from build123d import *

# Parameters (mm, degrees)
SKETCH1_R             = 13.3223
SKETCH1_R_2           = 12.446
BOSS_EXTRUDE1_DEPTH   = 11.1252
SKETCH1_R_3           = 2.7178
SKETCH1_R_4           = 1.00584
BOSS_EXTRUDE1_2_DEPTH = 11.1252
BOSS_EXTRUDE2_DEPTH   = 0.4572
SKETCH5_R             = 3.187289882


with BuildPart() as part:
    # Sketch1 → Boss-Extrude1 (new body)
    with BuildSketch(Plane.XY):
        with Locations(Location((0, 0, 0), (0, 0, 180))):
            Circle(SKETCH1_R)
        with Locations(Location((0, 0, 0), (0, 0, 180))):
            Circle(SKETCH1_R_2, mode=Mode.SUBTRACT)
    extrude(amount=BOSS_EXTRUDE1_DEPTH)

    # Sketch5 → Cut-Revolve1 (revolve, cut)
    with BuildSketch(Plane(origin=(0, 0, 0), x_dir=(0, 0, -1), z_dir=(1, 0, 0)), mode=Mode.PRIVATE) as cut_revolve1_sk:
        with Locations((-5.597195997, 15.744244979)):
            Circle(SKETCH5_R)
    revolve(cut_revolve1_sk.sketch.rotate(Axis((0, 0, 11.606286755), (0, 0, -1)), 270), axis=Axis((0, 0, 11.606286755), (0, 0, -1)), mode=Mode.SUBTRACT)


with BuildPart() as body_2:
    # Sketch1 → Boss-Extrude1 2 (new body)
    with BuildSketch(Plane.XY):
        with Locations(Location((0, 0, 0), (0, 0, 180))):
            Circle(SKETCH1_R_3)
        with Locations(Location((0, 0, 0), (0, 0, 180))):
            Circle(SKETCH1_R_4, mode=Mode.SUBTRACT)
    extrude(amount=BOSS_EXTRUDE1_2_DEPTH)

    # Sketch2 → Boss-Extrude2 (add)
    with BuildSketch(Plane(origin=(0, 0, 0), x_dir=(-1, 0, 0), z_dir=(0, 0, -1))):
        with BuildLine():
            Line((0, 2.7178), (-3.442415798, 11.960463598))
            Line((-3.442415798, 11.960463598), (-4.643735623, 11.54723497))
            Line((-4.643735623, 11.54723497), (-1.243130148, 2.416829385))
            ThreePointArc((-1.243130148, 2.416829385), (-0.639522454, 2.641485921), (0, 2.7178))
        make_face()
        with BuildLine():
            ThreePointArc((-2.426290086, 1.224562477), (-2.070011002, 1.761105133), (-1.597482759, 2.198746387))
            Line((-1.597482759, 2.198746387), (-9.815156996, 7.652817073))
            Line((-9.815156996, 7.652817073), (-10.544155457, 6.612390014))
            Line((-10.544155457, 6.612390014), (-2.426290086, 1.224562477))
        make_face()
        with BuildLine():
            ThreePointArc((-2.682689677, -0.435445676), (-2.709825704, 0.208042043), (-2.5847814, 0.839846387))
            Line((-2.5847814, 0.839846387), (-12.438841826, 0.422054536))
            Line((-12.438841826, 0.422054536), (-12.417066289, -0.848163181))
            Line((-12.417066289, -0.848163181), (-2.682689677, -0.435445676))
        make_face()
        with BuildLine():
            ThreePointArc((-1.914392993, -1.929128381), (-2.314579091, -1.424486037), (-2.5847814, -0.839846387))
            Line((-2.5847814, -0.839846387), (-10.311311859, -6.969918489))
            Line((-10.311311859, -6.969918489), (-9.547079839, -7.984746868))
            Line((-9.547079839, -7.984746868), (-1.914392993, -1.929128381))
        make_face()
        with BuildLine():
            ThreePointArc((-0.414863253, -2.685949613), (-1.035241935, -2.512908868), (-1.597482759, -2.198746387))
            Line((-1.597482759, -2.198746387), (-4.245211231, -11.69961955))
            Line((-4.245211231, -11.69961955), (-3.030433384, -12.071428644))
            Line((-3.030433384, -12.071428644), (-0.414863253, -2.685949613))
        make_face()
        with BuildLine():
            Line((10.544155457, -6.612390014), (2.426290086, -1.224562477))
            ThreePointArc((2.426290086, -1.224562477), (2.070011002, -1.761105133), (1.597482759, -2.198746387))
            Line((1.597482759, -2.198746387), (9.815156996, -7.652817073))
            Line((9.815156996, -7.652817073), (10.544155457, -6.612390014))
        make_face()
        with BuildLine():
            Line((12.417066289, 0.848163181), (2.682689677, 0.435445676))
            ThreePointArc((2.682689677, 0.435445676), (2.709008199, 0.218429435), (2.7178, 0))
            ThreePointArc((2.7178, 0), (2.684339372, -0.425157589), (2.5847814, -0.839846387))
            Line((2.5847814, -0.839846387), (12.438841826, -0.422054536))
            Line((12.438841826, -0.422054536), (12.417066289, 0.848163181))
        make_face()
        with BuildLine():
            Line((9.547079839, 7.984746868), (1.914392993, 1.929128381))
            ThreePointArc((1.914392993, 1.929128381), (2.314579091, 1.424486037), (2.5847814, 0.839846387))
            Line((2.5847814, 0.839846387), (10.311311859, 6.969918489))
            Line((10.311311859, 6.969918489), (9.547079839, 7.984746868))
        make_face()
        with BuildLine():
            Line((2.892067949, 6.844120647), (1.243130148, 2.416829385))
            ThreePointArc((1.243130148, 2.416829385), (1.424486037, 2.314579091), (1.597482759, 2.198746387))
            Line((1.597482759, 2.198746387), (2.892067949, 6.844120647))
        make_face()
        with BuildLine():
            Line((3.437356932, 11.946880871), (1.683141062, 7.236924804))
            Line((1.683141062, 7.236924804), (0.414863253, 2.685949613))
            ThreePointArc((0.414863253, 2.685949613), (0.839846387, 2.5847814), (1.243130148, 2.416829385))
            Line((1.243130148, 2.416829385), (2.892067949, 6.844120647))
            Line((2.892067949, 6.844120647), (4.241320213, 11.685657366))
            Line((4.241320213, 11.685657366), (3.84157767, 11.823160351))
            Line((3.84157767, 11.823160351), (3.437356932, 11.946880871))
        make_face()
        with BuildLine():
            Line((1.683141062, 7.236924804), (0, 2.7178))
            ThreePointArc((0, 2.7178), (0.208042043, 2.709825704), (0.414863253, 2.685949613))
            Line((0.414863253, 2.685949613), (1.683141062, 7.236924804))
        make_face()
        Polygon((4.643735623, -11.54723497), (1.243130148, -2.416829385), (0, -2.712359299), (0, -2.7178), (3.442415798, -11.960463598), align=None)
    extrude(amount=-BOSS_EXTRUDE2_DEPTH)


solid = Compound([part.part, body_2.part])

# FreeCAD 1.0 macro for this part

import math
import FreeCAD as App
import Part
import Sketcher
from FreeCAD import Vector
Q = App.Units.Quantity


def add_polygon(sketch, points):
    """Adds a closed chain of lines whose ends are joined by coincident constraints."""
    first, n = sketch.GeometryCount, len(points)
    for a, b in zip(points, points[1:] + points[:1]):
        sketch.addGeometry(Part.LineSegment(App.Vector(*a, 0), App.Vector(*b, 0)), False)
    for i in range(n):
        sketch.addConstraint(Sketcher.Constraint("Coincident", first + i, 2, first + (i + 1) % n, 1))

doc = App.newDocument("Part")
body = doc.addObject("PartDesign::Body", "Body")

# Sketch on XY plane
sketch1 = body.newObject("Sketcher::SketchObject", "Sketch")
sketch1.AttachmentSupport = (doc.getObject("XY_Plane"), [""])
sketch1.MapMode = "FlatFace"
sketch1.addGeometry(Part.Circle(Vector(0, 0, 0), Vector(0, 0, 1), 13), False)
sketch1.addGeometry(Part.Circle(Vector(0, 0, 0), Vector(0, 0, 1), 12), False)
sketch1.addConstraint(Sketcher.Constraint("Coincident", 0, 3, -1, 1))
sketch1.addConstraint(Sketcher.Constraint("Coincident", 1, 3, -1, 1))
sketch1.addConstraint(Sketcher.Constraint("Diameter", 1, Q("0.98 in")))
sketch1.addConstraint(Sketcher.Constraint("Diameter", 0, Q("1.049 in")))
pad1 = body.newObject("PartDesign::Pad", "Pad")
pad1.Profile = sketch1
pad1.Length = Q("0.438 in")

# Sketch on YZ plane
sketch2 = body.newObject("Sketcher::SketchObject", "Sketch001")
sketch2.AttachmentSupport = (doc.getObject("YZ_Plane"), [""])
sketch2.MapMode = "FlatFace"
sketch2.addGeometry(Part.Circle(Vector(15.7, 5.6, 0), Vector(0, 0, 1), 3.2), False)
sketch2.addConstraint(Sketcher.Constraint("Diameter", 0, 6.37458))
sketch2.addConstraint(Sketcher.Constraint("DistanceX", -1, 1, 0, 3, 15.744245))
sketch2.addConstraint(Sketcher.Constraint("DistanceY", -1, 1, 0, 3, 5.597196))
groove = body.newObject("PartDesign::Groove", "Groove")
groove.Profile = sketch2
groove.ReferenceAxis = (sketch2, ["V_Axis"])
groove.Angle = 360
body2 = doc.addObject("PartDesign::Body", "Body001")

# Sketch on XY plane
sketch3 = body2.newObject("Sketcher::SketchObject", "Sketch002")
sketch3.AttachmentSupport = (doc.getObject("XY_Plane001"), [""])
sketch3.MapMode = "FlatFace"
sketch3.addGeometry(Part.Circle(Vector(0, 0, 0), Vector(0, 0, 1), 2.7), False)
sketch3.addGeometry(Part.Circle(Vector(0, 0, 0), Vector(0, 0, 1), 1), False)
sketch3.addConstraint(Sketcher.Constraint("Coincident", 0, 3, -1, 1))
sketch3.addConstraint(Sketcher.Constraint("Coincident", 1, 3, -1, 1))
sketch3.addConstraint(Sketcher.Constraint("Diameter", 0, Q("0.214 in")))
sketch3.addConstraint(Sketcher.Constraint("Diameter", 1, Q("0.0792 in")))
pad2 = body2.newObject("PartDesign::Pad", "Pad001")
pad2.Profile = sketch3
pad2.Length = Q("0.438 in")

# Sketch on XY plane
sketch4 = body2.newObject("Sketcher::SketchObject", "Sketch003")
sketch4.AttachmentSupport = (doc.getObject("XY_Plane001"), [""])
sketch4.MapMode = "FlatFace"
sketch4.addGeometry(Part.LineSegment(Vector(0, 2.7178, 0), Vector(3.442416, 11.960464, 0)), False)  # 0
sketch4.addGeometry(Part.LineSegment(Vector(3.442416, 11.960464, 0), Vector(4.643736, 11.547235, 0)), False)  # 1
sketch4.addGeometry(Part.LineSegment(Vector(4.643736, 11.547235, 0), Vector(1.24313, 2.416829, 0)), False)  # 2
sketch4.addGeometry(Part.ArcOfCircle(Part.Circle(Vector(0, 0, 0), Vector(0, 0, 1), 2.7178), math.radians(62.780339), math.radians(90)), False)  # 3
sketch4.addGeometry(Part.ArcOfCircle(Part.Circle(Vector(0, 0, 0), Vector(0, 0, 1), 2.7178), math.radians(26.780339), math.radians(54)), False)  # 4
sketch4.addGeometry(Part.LineSegment(Vector(1.597483, 2.198746, 0), Vector(9.815157, 7.652817, 0)), False)  # 5
sketch4.addGeometry(Part.LineSegment(Vector(9.815157, 7.652817, 0), Vector(10.544155, 6.61239, 0)), False)  # 6
sketch4.addGeometry(Part.LineSegment(Vector(10.544155, 6.61239, 0), Vector(2.42629, 1.224562, 0)), False)  # 7
sketch4.addGeometry(Part.ArcOfCircle(Part.Circle(Vector(0, 0, 0), Vector(0, 0, 1), 2.7178), math.radians(-9.219661), math.radians(18)), False)  # 8
sketch4.addGeometry(Part.LineSegment(Vector(2.584781, 0.839846, 0), Vector(12.438842, 0.422055, 0)), False)  # 9
sketch4.addGeometry(Part.LineSegment(Vector(12.438842, 0.422055, 0), Vector(12.417066, -0.848163, 0)), False)  # 10
sketch4.addGeometry(Part.LineSegment(Vector(12.417066, -0.848163, 0), Vector(2.68269, -0.435446, 0)), False)  # 11
sketch4.addGeometry(Part.ArcOfCircle(Part.Circle(Vector(0, 0, 0), Vector(0, 0, 1), 2.7178), math.radians(-45.219661), math.radians(-18)), False)  # 12
sketch4.addGeometry(Part.LineSegment(Vector(2.584781, -0.839846, 0), Vector(10.311312, -6.969918, 0)), False)  # 13
sketch4.addGeometry(Part.LineSegment(Vector(10.311312, -6.969918, 0), Vector(9.54708, -7.984747, 0)), False)  # 14
sketch4.addGeometry(Part.LineSegment(Vector(9.54708, -7.984747, 0), Vector(1.914393, -1.929128, 0)), False)  # 15
sketch4.addGeometry(Part.ArcOfCircle(Part.Circle(Vector(0, 0, 0), Vector(0, 0, 1), 2.7178), math.radians(-81.219661), math.radians(-54)), False)  # 16
sketch4.addGeometry(Part.LineSegment(Vector(1.597483, -2.198746, 0), Vector(4.245211, -11.69962, 0)), False)  # 17
sketch4.addGeometry(Part.LineSegment(Vector(4.245211, -11.69962, 0), Vector(3.030433, -12.071429, 0)), False)  # 18
sketch4.addGeometry(Part.LineSegment(Vector(3.030433, -12.071429, 0), Vector(0.414863, -2.68595, 0)), False)  # 19
sketch4.addGeometry(Part.LineSegment(Vector(-10.544155, -6.61239, 0), Vector(-2.42629, -1.224562, 0)), False)  # 20
sketch4.addGeometry(Part.ArcOfCircle(Part.Circle(Vector(0, 0, 0), Vector(0, 0, 1), 2.7178), math.radians(-153.219661), math.radians(-126)), False)  # 21
sketch4.addGeometry(Part.LineSegment(Vector(-1.597483, -2.198746, 0), Vector(-9.815157, -7.652817, 0)), False)  # 22
sketch4.addGeometry(Part.LineSegment(Vector(-9.815157, -7.652817, 0), Vector(-10.544155, -6.61239, 0)), False)  # 23
sketch4.addGeometry(Part.LineSegment(Vector(-12.417066, 0.848163, 0), Vector(-2.68269, 0.435446, 0)), False)  # 24
sketch4.addGeometry(Part.ArcOfCircle(Part.Circle(Vector(0, 0, 0), Vector(0, 0, 1), 2.7178), math.radians(170.780339), math.radians(180)), False)  # 25
sketch4.addGeometry(Part.ArcOfCircle(Part.Circle(Vector(0, 0, 0), Vector(0, 0, 1), 2.7178), math.radians(-180), math.radians(-162)), False)  # 26
sketch4.addGeometry(Part.LineSegment(Vector(-2.584781, -0.839846, 0), Vector(-12.438842, -0.422055, 0)), False)  # 27
sketch4.addGeometry(Part.LineSegment(Vector(-12.438842, -0.422055, 0), Vector(-12.417066, 0.848163, 0)), False)  # 28
sketch4.addGeometry(Part.LineSegment(Vector(-9.54708, 7.984747, 0), Vector(-1.914393, 1.929128, 0)), False)  # 29
sketch4.addGeometry(Part.ArcOfCircle(Part.Circle(Vector(0, 0, 0), Vector(0, 0, 1), 2.7178), math.radians(134.780339), math.radians(162)), False)  # 30
sketch4.addGeometry(Part.LineSegment(Vector(-2.584781, 0.839846, 0), Vector(-10.311312, 6.969918, 0)), False)  # 31
sketch4.addGeometry(Part.LineSegment(Vector(-10.311312, 6.969918, 0), Vector(-9.54708, 7.984747, 0)), False)  # 32
sketch4.addGeometry(Part.ArcOfCircle(Part.Circle(Vector(0, 0, 0), Vector(0, 0, 1), 2.7178), math.radians(117.219661), math.radians(126)), False)  # 33
sketch4.addGeometry(Part.LineSegment(Vector(-1.597483, 2.198746, 0), Vector(-2.892068, 6.844121, 0)), False)  # 34
sketch4.addGeometry(Part.LineSegment(Vector(-2.892068, 6.844121, 0), Vector(-4.24132, 11.685657, 0)), False)  # 35
sketch4.addGeometry(Part.LineSegment(Vector(-4.24132, 11.685657, 0), Vector(-3.841578, 11.82316, 0)), False)  # 36
sketch4.addGeometry(Part.LineSegment(Vector(-3.841578, 11.82316, 0), Vector(-3.437357, 11.946881, 0)), False)  # 37
sketch4.addGeometry(Part.LineSegment(Vector(-3.437357, 11.946881, 0), Vector(-1.683141, 7.236925, 0)), False)  # 38
sketch4.addGeometry(Part.LineSegment(Vector(-1.683141, 7.236925, 0), Vector(0, 2.7178, 0)), False)  # 39
sketch4.addGeometry(Part.ArcOfCircle(Part.Circle(Vector(0, 0, 0), Vector(0, 0, 1), 2.7178), math.radians(90), math.radians(98.780339)), False)  # 40
sketch4.addGeometry(Part.ArcOfCircle(Part.Circle(Vector(0, 0, 0), Vector(0, 0, 1), 2.7178), math.radians(98.780339), math.radians(117.219661)), False)  # 41
add_polygon(sketch4, [(-4.643736, -11.547235), (-1.24313, -2.416829), (0, -2.712359), (0, -2.7178), (-3.442416, -11.960464)])  # lines 42-46
sketch4.addConstraint(Sketcher.Constraint("Coincident", 0, 2, 1, 1))
sketch4.addConstraint(Sketcher.Constraint("Coincident", 1, 2, 2, 1))
sketch4.addConstraint(Sketcher.Constraint("Coincident", 2, 2, 3, 1))
sketch4.addConstraint(Sketcher.Constraint("Coincident", 3, 2, 0, 1))
sketch4.addConstraint(Sketcher.Constraint("Coincident", 4, 2, 5, 1))
sketch4.addConstraint(Sketcher.Constraint("Coincident", 5, 2, 6, 1))
sketch4.addConstraint(Sketcher.Constraint("Coincident", 6, 2, 7, 1))
sketch4.addConstraint(Sketcher.Constraint("Coincident", 7, 2, 4, 1))
sketch4.addConstraint(Sketcher.Constraint("Coincident", 8, 2, 9, 1))
sketch4.addConstraint(Sketcher.Constraint("Coincident", 9, 2, 10, 1))
sketch4.addConstraint(Sketcher.Constraint("Coincident", 10, 2, 11, 1))
sketch4.addConstraint(Sketcher.Constraint("Coincident", 11, 2, 8, 1))
sketch4.addConstraint(Sketcher.Constraint("Coincident", 12, 2, 13, 1))
sketch4.addConstraint(Sketcher.Constraint("Coincident", 13, 2, 14, 1))
sketch4.addConstraint(Sketcher.Constraint("Coincident", 14, 2, 15, 1))
sketch4.addConstraint(Sketcher.Constraint("Coincident", 15, 2, 12, 1))
sketch4.addConstraint(Sketcher.Constraint("Coincident", 16, 2, 17, 1))
sketch4.addConstraint(Sketcher.Constraint("Coincident", 17, 2, 18, 1))
sketch4.addConstraint(Sketcher.Constraint("Coincident", 18, 2, 19, 1))
sketch4.addConstraint(Sketcher.Constraint("Coincident", 19, 2, 16, 1))
sketch4.addConstraint(Sketcher.Constraint("Coincident", 20, 2, 21, 1))
sketch4.addConstraint(Sketcher.Constraint("Coincident", 21, 2, 22, 1))
sketch4.addConstraint(Sketcher.Constraint("Coincident", 22, 2, 23, 1))
sketch4.addConstraint(Sketcher.Constraint("Coincident", 23, 2, 20, 1))
sketch4.addConstraint(Sketcher.Constraint("Coincident", 24, 2, 25, 1))
sketch4.addConstraint(Sketcher.Constraint("Coincident", 25, 2, 26, 1))
sketch4.addConstraint(Sketcher.Constraint("Coincident", 26, 2, 27, 1))
sketch4.addConstraint(Sketcher.Constraint("Coincident", 27, 2, 28, 1))
sketch4.addConstraint(Sketcher.Constraint("Coincident", 28, 2, 24, 1))
sketch4.addConstraint(Sketcher.Constraint("Coincident", 29, 2, 30, 1))
sketch4.addConstraint(Sketcher.Constraint("Coincident", 30, 2, 31, 1))
sketch4.addConstraint(Sketcher.Constraint("Coincident", 31, 2, 32, 1))
sketch4.addConstraint(Sketcher.Constraint("Coincident", 32, 2, 29, 1))
sketch4.addConstraint(Sketcher.Constraint("Coincident", 33, 2, 34, 1))
sketch4.addConstraint(Sketcher.Constraint("Coincident", 34, 2, 35, 1))
sketch4.addConstraint(Sketcher.Constraint("Coincident", 35, 2, 36, 1))
sketch4.addConstraint(Sketcher.Constraint("Coincident", 36, 2, 37, 1))
sketch4.addConstraint(Sketcher.Constraint("Coincident", 37, 2, 38, 1))
sketch4.addConstraint(Sketcher.Constraint("Coincident", 38, 2, 39, 1))
sketch4.addConstraint(Sketcher.Constraint("Coincident", 39, 2, 40, 1))
sketch4.addConstraint(Sketcher.Constraint("Coincident", 40, 2, 41, 1))
sketch4.addConstraint(Sketcher.Constraint("Coincident", 41, 2, 33, 1))
sketch4.addConstraint(Sketcher.Constraint("Vertical", 44))
sketch4.addConstraint(Sketcher.Constraint("Coincident", 3, 3, -1, 1))
sketch4.addConstraint(Sketcher.Constraint("Coincident", 4, 3, -1, 1))
sketch4.addConstraint(Sketcher.Constraint("Coincident", 8, 3, -1, 1))
sketch4.addConstraint(Sketcher.Constraint("Coincident", 12, 3, -1, 1))
sketch4.addConstraint(Sketcher.Constraint("Coincident", 16, 3, -1, 1))
sketch4.addConstraint(Sketcher.Constraint("Coincident", 21, 3, -1, 1))
sketch4.addConstraint(Sketcher.Constraint("Coincident", 25, 3, -1, 1))
sketch4.addConstraint(Sketcher.Constraint("Coincident", 26, 3, -1, 1))
sketch4.addConstraint(Sketcher.Constraint("Coincident", 30, 3, -1, 1))
sketch4.addConstraint(Sketcher.Constraint("Coincident", 33, 3, -1, 1))
sketch4.addConstraint(Sketcher.Constraint("Coincident", 40, 3, -1, 1))
sketch4.addConstraint(Sketcher.Constraint("Coincident", 41, 3, -1, 1))
sketch4.addConstraint(Sketcher.Constraint("Coincident", 39, 2, 3, 2))
sketch4.addConstraint(Sketcher.Constraint("PointOnObject", 3, 2, -2))
sketch4.addConstraint(Sketcher.Constraint("PointOnObject", 25, 2, -1))
sketch4.addConstraint(Sketcher.Constraint("PointOnObject", 43, 2, -2))
sketch4.addConstraint(Sketcher.Constraint("Radius", 3, Q("0.107 in")))
sketch4.addConstraint(Sketcher.Constraint("Radius", 4, Q("0.107 in")))
sketch4.addConstraint(Sketcher.Constraint("Radius", 8, Q("0.107 in")))
sketch4.addConstraint(Sketcher.Constraint("Radius", 12, Q("0.107 in")))
sketch4.addConstraint(Sketcher.Constraint("Radius", 16, Q("0.107 in")))
sketch4.addConstraint(Sketcher.Constraint("Radius", 21, Q("0.107 in")))
sketch4.addConstraint(Sketcher.Constraint("Radius", 25, Q("0.107 in")))
sketch4.addConstraint(Sketcher.Constraint("Radius", 30, Q("0.107 in")))
sketch4.addConstraint(Sketcher.Constraint("DistanceY", 44, 2, -1, 1, Q("0.107 in")))
sketch4.addConstraint(Sketcher.Constraint("DistanceX", 1, 2, 6, 2, Q("0.2323 in")))
sketch4.addConstraint(Sketcher.Constraint("DistanceY", 8, 2, 4, 2, Q("0.0535 in")))
sketch4.addConstraint(Sketcher.Constraint("DistanceY", 16, 2, 12, 2, Q("0.0535 in")))
sketch4.addConstraint(Sketcher.Constraint("DistanceY", 21, 2, 26, 2, Q("0.0535 in")))
sketch4.addConstraint(Sketcher.Constraint("DistanceY", 30, 2, 33, 2, Q("0.0535 in")))
sketch4.addConstraint(Sketcher.Constraint("DistanceX", 23, 2, 46, 2, Q("0.2323 in")))
sketch4.addConstraint(Sketcher.Constraint("DistanceY", 44, 2, 44, 1, 0.005441))
sketch4.addConstraint(Sketcher.Constraint("DistanceX", 5, 2, 6, 2, 0.728998))
sketch4.addConstraint(Sketcher.Constraint("DistanceX", 4, 2, 8, 2, 0.987299))
sketch4.addConstraint(Sketcher.Constraint("DistanceX", 7, 2, 11, 2, 0.2564))
sketch4.addConstraint(Sketcher.Constraint("DistanceY", 12, 2, 11, 2, 0.404401))
sketch4.addConstraint(Sketcher.Constraint("DistanceY", 14, 2, 9, 2, 8.406801))
sketch4.addConstraint(Sketcher.Constraint("DistanceX", 12, 2, 14, 2, 6.962298))
sketch4.addConstraint(Sketcher.Constraint("DistanceY", 14, 2, 12, 2, 7.1449))
sketch4.addConstraint(Sketcher.Constraint("DistanceX", 16, 2, 12, 2, 0.987299))
sketch4.addConstraint(Sketcher.Constraint("DistanceX", 17, 2, 13, 2, 6.066101))
sketch4.addConstraint(Sketcher.Constraint("DistanceY", 17, 2, 13, 2, 4.729701))
sketch4.addConstraint(Sketcher.Constraint("DistanceY", 18, 2, 15, 2, 10.1423))
sketch4.addConstraint(Sketcher.Constraint("DistanceX", 23, 2, 22, 2, 0.728998))
sketch4.addConstraint(Sketcher.Constraint("DistanceX", 24, 2, 20, 2, 0.2564))
sketch4.addConstraint(Sketcher.Constraint("DistanceX", 26, 2, 21, 2, 0.987299))
sketch4.addConstraint(Sketcher.Constraint("DistanceY", 27, 2, 24, 2, 0.8575))
sketch4.addConstraint(Sketcher.Constraint("DistanceY", 24, 2, 30, 2, 0.404401))
sketch4.addConstraint(Sketcher.Constraint("DistanceY", 27, 2, 32, 2, 8.406801))
sketch4.addConstraint(Sketcher.Constraint("DistanceX", 32, 2, 30, 2, 6.962298))
sketch4.addConstraint(Sketcher.Constraint("DistanceX", 30, 2, 33, 2, 0.987299))
sketch4.addConstraint(Sketcher.Constraint("DistanceX", 34, 2, 2, 2, 4.135198))
sketch4.addConstraint(Sketcher.Constraint("DistanceY", 29, 2, 41, 2, 0.487701))
sketch4.addConstraint(Sketcher.Constraint("Distance", 2, 9.743122))
sketch4.addConstraint(Sketcher.Constraint("Distance", 7, 9.743122))
sketch4.addConstraint(Sketcher.Constraint("Distance", 11, 9.743122))
sketch4.addConstraint(Sketcher.Constraint("Distance", 15, 9.743122))
sketch4.addConstraint(Sketcher.Constraint("Distance", 19, 9.743122))
sketch4.addConstraint(Sketcher.Constraint("Distance", 20, 9.743122))
sketch4.addConstraint(Sketcher.Constraint("Distance", 24, 9.743122))
sketch4.addConstraint(Sketcher.Constraint("Distance", 29, 9.743122))
sketch4.addConstraint(Sketcher.Constraint("Distance", 34, 4.822391))
sketch4.addConstraint(Sketcher.Constraint("Distance", 35, 5.026028))
sketch4.addConstraint(Sketcher.Constraint("Distance", 36, 0.422731))
sketch4.addConstraint(Sketcher.Constraint("Distance", 37, 0.422731))
sketch4.addConstraint(Sketcher.Constraint("Distance", 38, 5.026028))
sketch4.addConstraint(Sketcher.Constraint("Distance", 39, 4.822391))
sketch4.addConstraint(Sketcher.Constraint("Distance", 42, 9.743122))
sketch4.addConstraint(Sketcher.Constraint("DistanceX", -1, 1, 2, 2, 1.24313))
sketch4.addConstraint(Sketcher.Constraint("DistanceY", -1, 1, 6, 2, 6.61239))
sketch4.addConstraint(Sketcher.Constraint("DistanceX", -1, 1, 9, 2, 12.438842))
sketch4.addConstraint(Sketcher.Constraint("DistanceX", -1, 1, 13, 2, 10.311312))
sketch4.addConstraint(Sketcher.Constraint("DistanceY", 13, 2, -1, 1, 6.969918))
sketch4.addConstraint(Sketcher.Constraint("DistanceY", 19, 2, -1, 1, 2.68595))
sketch4.addConstraint(Sketcher.Constraint("DistanceY", 23, 2, -1, 1, 6.61239))
sketch4.addConstraint(Sketcher.Constraint("DistanceX", 27, 2, -1, 1, 12.438842))
sketch4.addConstraint(Sketcher.Constraint("DistanceX", 31, 2, -1, 1, 10.311312))
sketch4.addConstraint(Sketcher.Constraint("DistanceY", -1, 1, 31, 2, 6.969918))
sketch4.addConstraint(Sketcher.Constraint("DistanceX", 35, 2, -1, 1, 4.24132))
sketch4.addConstraint(Sketcher.Constraint("DistanceY", -1, 1, 36, 2, 11.82316))
sketch4.addConstraint(Sketcher.Constraint("DistanceX", 38, 2, -1, 1, 1.683141))
sketch4.addConstraint(Sketcher.Constraint("DistanceY", -1, 1, 40, 2, 2.68595))
sketch4.addConstraint(Sketcher.Constraint("DistanceX", 42, 2, -1, 1, 1.24313))
sketch4.addConstraint(Sketcher.Constraint("DistanceY", 42, 2, -1, 1, 2.416829))
sketch4.addConstraint(Sketcher.Constraint("DistanceX", 0, 2, 1, 2, 1.20132))
sketch4.addConstraint(Sketcher.Constraint("DistanceY", 1, 2, 0, 2, 0.413229))
sketch4.addConstraint(Sketcher.Constraint("DistanceY", 4, 2, 5, 2, 5.454071))
sketch4.addConstraint(Sketcher.Constraint("DistanceX", 6, 2, 10, 2, 1.872911))
sketch4.addConstraint(Sketcher.Constraint("DistanceY", 22, 2, 21, 2, 5.454071))
sketch4.addConstraint(Sketcher.Constraint("DistanceX", 28, 2, 23, 2, 1.872911))
sketch4.addConstraint(Sketcher.Constraint("DistanceX", 45, 2, 18, 2, 6.472849))
sketch4.addConstraint(Sketcher.Constraint("DistanceY", 45, 2, 46, 2, 0.413229))
pad3 = body2.newObject("PartDesign::Pad", "Pad002")
pad3.Profile = sketch4
pad3.Length = Q("0.018 in")

doc.recompute()
